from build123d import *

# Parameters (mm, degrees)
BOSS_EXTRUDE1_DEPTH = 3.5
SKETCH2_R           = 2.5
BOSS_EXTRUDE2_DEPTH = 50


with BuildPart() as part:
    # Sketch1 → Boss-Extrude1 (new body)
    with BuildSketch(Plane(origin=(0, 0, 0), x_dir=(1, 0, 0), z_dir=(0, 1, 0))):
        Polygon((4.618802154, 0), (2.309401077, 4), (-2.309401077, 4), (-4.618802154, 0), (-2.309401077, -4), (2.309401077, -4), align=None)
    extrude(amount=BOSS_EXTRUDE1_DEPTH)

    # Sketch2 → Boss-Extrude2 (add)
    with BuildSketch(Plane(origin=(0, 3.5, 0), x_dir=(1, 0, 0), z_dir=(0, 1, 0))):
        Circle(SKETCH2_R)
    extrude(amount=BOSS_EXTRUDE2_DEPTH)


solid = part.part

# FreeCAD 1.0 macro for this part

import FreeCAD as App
import Part
import Sketcher

V = App.Vector
Q = App.Units.Quantity

doc = App.newDocument("Part")
body = doc.addObject("PartDesign::Body", "Body")

sketch1 = body.newObject("Sketcher::SketchObject", "Sketch")
sketch1.AttachmentSupport = (doc.getObject("XZ_Plane"), [""])
sketch1.MapMode = "FlatFace"
sketch1.addGeometry([
    Part.LineSegment(V(4.6, 0, 0), V(2.3, -4, 0)),
    Part.LineSegment(V(2.3, -4, 0), V(-2.3, -4, 0)),
    Part.LineSegment(V(-2.3, -4, 0), V(-4.6, 0, 0)),
    Part.LineSegment(V(-4.6, 0, 0), V(-2.3, 4, 0)),
    Part.LineSegment(V(-2.3, 4, 0), V(2.3, 4, 0)),
    Part.LineSegment(V(2.3, 4, 0), V(4.6, 0, 0)),
], False)
sketch1.addConstraint([
    Sketcher.Constraint("Coincident", 0, 2, 1, 1),
    Sketcher.Constraint("Coincident", 1, 2, 2, 1),
    Sketcher.Constraint("Coincident", 2, 2, 3, 1),
    Sketcher.Constraint("Coincident", 3, 2, 4, 1),
    Sketcher.Constraint("Coincident", 4, 2, 5, 1),
    Sketcher.Constraint("Coincident", 5, 2, 0, 1),
    Sketcher.Constraint("Horizontal", 1),
    Sketcher.Constraint("Horizontal", 4),
    Sketcher.Constraint("Symmetric", 0, 2, 3, 2, -1, 1),
    Sketcher.Constraint("Symmetric", 2, 2, 5, 2, -1, 1),
    Sketcher.Constraint("PointOnObject", 2, 2, -1),
    Sketcher.Constraint("Parallel", 2, 5),
    Sketcher.Constraint("Vertical", 1, 2, 3, 2),
    Sketcher.Constraint("Angle", 0, Q("-120 deg")),
    Sketcher.Constraint("DistanceY", 0, 2, -1, 1, 4.0),
    Sketcher.Constraint("DistanceX", -1, 1, 0, 2, 2.309401),
])
pad1 = body.newObject("PartDesign::Pad", "Pad")
pad1.Profile = sketch1
pad1.Length = 3.5
pad1.Reversed = True

sketch2 = body.newObject("Sketcher::SketchObject", "Sketch001")
sketch2.AttachmentSupport = (doc.getObject("XZ_Plane"), [""])
sketch2.MapMode = "FlatFace"
sketch2.AttachmentOffset = App.Placement(V(0, 0, -3.5), App.Rotation())
sketch2.addGeometry(Part.Circle(V(0, 0, 0), V(0, 0, 1), 2.5), False)
sketch2.addConstraint([
    Sketcher.Constraint("Coincident", 0, 3, -1, 1),
    Sketcher.Constraint("Diameter", 0, 5.0),
])
pad2 = body.newObject("PartDesign::Pad", "Pad001")
pad2.Profile = sketch2
pad2.Length = 50
pad2.Reversed = True

doc.recompute()
